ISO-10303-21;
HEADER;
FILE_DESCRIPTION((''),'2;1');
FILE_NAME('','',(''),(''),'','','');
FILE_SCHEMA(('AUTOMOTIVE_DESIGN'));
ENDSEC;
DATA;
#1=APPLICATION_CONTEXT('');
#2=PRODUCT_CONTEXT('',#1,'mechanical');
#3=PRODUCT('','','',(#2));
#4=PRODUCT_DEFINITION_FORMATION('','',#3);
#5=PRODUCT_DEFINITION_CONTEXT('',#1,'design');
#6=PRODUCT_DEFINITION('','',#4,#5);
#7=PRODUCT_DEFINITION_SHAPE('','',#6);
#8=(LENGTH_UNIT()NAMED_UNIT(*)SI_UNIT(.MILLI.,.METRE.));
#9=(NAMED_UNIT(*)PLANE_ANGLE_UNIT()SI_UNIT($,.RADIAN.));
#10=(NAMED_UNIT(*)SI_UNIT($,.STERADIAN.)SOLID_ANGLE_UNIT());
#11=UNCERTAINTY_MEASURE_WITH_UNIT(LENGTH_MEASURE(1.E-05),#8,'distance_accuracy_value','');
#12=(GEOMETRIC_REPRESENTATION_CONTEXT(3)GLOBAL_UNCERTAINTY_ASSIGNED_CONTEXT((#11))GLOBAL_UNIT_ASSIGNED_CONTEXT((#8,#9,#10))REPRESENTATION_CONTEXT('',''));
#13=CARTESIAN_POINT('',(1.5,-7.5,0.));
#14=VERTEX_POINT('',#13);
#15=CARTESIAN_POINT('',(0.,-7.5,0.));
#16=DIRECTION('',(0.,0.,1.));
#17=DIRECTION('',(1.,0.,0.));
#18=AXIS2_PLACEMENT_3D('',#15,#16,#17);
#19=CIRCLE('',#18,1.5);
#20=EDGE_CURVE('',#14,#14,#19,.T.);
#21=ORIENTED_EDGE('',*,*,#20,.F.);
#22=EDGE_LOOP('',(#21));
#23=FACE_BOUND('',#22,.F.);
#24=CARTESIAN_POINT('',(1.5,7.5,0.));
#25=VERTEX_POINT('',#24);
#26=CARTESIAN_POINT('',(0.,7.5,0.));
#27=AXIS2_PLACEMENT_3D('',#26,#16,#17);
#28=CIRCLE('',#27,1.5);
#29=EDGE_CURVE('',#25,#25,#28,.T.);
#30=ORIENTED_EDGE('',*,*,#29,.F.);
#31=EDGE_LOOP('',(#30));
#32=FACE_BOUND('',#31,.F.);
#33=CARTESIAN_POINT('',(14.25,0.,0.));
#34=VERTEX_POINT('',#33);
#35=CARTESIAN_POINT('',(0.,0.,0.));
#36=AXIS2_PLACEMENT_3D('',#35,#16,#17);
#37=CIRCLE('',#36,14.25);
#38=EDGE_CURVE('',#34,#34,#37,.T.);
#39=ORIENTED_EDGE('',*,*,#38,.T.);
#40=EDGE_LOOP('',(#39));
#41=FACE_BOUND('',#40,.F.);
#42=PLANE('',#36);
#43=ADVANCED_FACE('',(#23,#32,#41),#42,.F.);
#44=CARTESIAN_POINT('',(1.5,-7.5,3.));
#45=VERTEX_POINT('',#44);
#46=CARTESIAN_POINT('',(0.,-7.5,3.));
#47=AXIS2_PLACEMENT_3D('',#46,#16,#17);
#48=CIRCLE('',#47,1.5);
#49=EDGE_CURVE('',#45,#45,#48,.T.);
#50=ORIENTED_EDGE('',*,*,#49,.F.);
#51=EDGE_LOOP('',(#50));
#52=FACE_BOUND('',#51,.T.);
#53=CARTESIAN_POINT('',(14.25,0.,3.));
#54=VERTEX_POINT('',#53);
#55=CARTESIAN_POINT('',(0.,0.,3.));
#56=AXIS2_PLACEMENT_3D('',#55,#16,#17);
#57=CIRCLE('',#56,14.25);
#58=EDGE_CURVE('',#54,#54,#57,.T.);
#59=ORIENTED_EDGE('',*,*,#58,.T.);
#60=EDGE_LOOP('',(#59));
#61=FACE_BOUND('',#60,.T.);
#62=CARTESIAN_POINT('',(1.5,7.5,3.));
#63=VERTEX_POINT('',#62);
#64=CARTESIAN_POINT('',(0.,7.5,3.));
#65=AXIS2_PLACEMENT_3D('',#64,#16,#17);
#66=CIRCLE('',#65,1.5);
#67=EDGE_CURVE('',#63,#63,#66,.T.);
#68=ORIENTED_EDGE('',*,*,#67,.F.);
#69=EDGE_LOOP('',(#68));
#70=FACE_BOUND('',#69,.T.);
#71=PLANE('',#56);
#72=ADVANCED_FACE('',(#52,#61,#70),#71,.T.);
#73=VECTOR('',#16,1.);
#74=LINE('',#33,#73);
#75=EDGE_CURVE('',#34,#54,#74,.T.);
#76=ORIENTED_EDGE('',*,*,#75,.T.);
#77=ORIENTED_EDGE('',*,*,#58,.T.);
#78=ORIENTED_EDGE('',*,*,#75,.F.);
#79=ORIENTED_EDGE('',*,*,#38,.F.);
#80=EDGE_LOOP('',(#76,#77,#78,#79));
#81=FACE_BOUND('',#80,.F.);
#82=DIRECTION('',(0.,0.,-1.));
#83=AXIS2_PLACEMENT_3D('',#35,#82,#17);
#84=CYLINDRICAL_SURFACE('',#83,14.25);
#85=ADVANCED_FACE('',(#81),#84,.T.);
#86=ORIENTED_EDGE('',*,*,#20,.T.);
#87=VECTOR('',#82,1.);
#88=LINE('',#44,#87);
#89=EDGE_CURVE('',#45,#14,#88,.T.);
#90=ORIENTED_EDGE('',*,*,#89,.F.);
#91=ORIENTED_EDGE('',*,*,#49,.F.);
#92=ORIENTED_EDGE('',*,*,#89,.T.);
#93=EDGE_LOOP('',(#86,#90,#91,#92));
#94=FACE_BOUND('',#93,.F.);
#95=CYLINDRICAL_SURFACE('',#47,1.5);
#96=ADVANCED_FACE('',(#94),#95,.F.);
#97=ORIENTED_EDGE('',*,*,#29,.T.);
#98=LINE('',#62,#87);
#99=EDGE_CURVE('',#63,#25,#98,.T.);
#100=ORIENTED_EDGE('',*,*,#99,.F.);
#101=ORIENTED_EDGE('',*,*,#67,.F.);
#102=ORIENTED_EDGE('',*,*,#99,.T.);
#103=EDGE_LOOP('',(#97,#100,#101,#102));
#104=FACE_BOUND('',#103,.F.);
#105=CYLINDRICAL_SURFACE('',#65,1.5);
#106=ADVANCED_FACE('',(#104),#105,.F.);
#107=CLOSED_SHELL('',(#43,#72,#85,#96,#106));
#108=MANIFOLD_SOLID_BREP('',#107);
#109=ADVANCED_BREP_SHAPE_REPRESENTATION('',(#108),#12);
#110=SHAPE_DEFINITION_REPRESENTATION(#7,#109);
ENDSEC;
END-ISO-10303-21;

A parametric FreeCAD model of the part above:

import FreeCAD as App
import Part
import Sketcher

V = App.Vector
Q = App.Units.Quantity

doc = App.newDocument("Part")
body = doc.addObject("PartDesign::Body", "Body")

# Sketch on XY plane
sketch1 = doc.addObject("Sketcher::SketchObject", "Sketch")
body.addObject(sketch1)
sketch1.AttachmentSupport = (doc.XY_Plane, [""])
sketch1.MapMode = "FlatFace"
sketch1.addGeometry(Part.Circle(V(0, 0, 0), V(0, 0, 1), 14.25), False)
sketch1.addConstraint(Sketcher.Constraint("Coincident", 0, 3, -1, 1))
sketch1.addConstraint(Sketcher.Constraint("Diameter", 0, Q("28.5 mm")))
pad1 = doc.addObject("PartDesign::Pad", "Pad")
body.addObject(pad1)
pad1.Profile = sketch1
pad1.Length = 3

# Sketch on XY plane
sketch2 = doc.addObject("Sketcher::SketchObject", "Sketch001")
body.addObject(sketch2)
sketch2.AttachmentSupport = (doc.XY_Plane, [""])
sketch2.MapMode = "FlatFace"
sketch2.AttachmentOffset = App.Placement(V(0, 0, 3), App.Rotation())
sketch2.addGeometry(Part.Circle(V(0, 7.5, 0), V(0, 0, 1), 1.5), False)
sketch2.addGeometry(Part.Circle(V(0, -7.5, 0), V(0, 0, 1), 1.5), False)
sketch2.addConstraint(Sketcher.Constraint("Equal", 0, 1))
sketch2.addConstraint(Sketcher.Constraint("Symmetric", 0, 3, 1, 3, -1, 1))
sketch2.addConstraint(Sketcher.Constraint("PointOnObject", 0, 3, -2))
sketch2.addConstraint(Sketcher.Constraint("Diameter", 0, Q("3 mm")))
sketch2.addConstraint(Sketcher.Constraint("DistanceY", 1, 3, 0, 3, Q("15 mm")))
pocket1 = doc.addObject("PartDesign::Pocket", "Pocket")
body.addObject(pocket1)
pocket1.Profile = sketch2
pocket1.Length = 10

doc.recompute()
